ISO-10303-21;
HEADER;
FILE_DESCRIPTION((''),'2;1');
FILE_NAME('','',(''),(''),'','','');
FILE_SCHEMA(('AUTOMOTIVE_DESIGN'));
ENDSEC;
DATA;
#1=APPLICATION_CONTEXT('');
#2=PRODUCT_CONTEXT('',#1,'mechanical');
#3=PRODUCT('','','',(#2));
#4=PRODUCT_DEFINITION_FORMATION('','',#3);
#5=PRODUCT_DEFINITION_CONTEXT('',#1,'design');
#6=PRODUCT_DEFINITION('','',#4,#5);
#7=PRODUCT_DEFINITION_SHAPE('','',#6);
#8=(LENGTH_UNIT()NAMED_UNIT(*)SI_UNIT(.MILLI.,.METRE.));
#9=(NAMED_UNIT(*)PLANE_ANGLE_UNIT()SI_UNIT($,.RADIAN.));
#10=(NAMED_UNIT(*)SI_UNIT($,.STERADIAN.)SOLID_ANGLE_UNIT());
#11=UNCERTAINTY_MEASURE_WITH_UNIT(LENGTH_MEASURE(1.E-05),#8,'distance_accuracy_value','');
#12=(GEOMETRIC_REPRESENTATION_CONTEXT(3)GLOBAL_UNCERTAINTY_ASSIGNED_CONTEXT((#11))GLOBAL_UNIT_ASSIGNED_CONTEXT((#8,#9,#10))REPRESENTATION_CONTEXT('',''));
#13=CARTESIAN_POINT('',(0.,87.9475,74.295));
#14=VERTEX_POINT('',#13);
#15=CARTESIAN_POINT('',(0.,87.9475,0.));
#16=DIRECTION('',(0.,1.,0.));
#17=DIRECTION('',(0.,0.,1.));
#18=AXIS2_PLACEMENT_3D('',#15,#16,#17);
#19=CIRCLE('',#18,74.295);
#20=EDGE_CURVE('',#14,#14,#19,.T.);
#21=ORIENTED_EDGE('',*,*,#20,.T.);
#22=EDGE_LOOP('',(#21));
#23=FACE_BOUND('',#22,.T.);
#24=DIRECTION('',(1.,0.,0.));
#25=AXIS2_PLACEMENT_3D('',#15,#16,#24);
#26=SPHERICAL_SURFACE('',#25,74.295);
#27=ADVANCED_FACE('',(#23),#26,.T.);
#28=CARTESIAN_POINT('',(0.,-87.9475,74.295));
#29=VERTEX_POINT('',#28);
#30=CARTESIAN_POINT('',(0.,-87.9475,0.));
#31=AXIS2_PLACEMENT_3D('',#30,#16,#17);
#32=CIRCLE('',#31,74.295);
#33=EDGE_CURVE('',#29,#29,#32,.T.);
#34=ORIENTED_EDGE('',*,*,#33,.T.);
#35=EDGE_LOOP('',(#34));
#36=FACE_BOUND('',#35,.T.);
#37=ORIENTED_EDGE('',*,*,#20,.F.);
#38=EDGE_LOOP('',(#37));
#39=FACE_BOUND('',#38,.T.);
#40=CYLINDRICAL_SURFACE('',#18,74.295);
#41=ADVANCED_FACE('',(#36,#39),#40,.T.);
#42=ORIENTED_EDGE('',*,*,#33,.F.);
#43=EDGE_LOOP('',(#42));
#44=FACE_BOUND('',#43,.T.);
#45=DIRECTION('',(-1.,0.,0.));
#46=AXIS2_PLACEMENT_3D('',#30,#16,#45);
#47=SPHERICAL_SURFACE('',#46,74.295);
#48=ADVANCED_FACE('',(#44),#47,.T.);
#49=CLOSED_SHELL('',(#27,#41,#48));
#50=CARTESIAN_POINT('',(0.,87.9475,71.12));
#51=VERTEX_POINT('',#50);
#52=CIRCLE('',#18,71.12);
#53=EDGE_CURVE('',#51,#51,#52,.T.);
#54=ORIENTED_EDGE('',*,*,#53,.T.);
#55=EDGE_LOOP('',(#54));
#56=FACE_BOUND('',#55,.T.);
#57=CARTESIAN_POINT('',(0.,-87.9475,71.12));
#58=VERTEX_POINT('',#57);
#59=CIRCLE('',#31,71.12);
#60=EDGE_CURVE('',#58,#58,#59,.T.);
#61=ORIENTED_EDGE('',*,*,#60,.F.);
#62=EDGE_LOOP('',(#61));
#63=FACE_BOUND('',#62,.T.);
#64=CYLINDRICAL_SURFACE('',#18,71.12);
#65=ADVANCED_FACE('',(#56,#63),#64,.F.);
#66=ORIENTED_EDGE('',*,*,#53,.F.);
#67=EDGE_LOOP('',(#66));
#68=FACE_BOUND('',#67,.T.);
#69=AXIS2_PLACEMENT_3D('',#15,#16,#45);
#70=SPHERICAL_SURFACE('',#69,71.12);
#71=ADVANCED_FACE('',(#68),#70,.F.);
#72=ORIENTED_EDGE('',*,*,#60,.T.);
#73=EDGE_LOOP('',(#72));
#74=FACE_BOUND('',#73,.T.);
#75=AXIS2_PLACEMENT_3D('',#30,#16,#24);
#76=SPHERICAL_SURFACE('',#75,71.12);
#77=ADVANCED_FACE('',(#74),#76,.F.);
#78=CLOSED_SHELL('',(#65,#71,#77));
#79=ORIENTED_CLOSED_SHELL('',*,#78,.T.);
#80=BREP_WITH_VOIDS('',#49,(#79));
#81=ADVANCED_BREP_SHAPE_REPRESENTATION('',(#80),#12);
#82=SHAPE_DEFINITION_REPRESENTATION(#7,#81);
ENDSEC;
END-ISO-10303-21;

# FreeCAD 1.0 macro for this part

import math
import FreeCAD as App
import Part
import Sketcher
from FreeCAD import Vector
Q = App.Units.Quantity

doc = App.newDocument("Part")
body = doc.addObject("PartDesign::Body", "Body")

# Sketch on XY plane
sketch1 = body.newObject("Sketcher::SketchObject", "Sketch")
sketch1.AttachmentSupport = (doc.getObject("XY_Plane"), [""])
sketch1.MapMode = "FlatFace"
sketch1.addGeometry([
    Part.LineSegment(Vector(-74.3, 87.9, 0), Vector(-74.3, -87.9, 0)),  # 0
    Part.ArcOfCircle(Part.Circle(Vector(0, -87.9, 0), Vector(0, 0, 1), 74.3), math.radians(-180), math.radians(-90)),  # 1
    Part.LineSegment(Vector(0, -162.2, 0), Vector(0, -159.1, 0)),  # 2
    Part.ArcOfCircle(Part.Circle(Vector(0, -87.9, 0), Vector(0, 0, 1), 71.1), math.radians(180), math.radians(270)),  # 3
    Part.LineSegment(Vector(-71.1, -87.9, 0), Vector(-71.1, 87.9, 0)),  # 4
    Part.ArcOfCircle(Part.Circle(Vector(0, 87.9, 0), Vector(0, 0, 1), 71.1), math.radians(90), math.radians(180)),  # 5
    Part.LineSegment(Vector(0, 159.1, 0), Vector(0, 162.2, 0)),  # 6
    Part.ArcOfCircle(Part.Circle(Vector(0, 87.9, 0), Vector(0, 0, 1), 74.3), math.radians(90), math.radians(180)),  # 7
], False)
sketch1.addConstraint([
    Sketcher.Constraint("Tangent", 0, 2, 1, 1),
    Sketcher.Constraint("Coincident", 1, 2, 2, 1),
    Sketcher.Constraint("Coincident", 2, 2, 3, 2),
    Sketcher.Constraint("Tangent", 3, 1, 4, 1),
    Sketcher.Constraint("Tangent", 4, 2, 5, 2),
    Sketcher.Constraint("Coincident", 5, 1, 6, 1),
    Sketcher.Constraint("Coincident", 6, 2, 7, 1),
    Sketcher.Constraint("Tangent", 7, 2, 0, 1),
    Sketcher.Constraint("Vertical", 0),
    Sketcher.Constraint("Vertical", 2),
    Sketcher.Constraint("Vertical", 4),
    Sketcher.Constraint("Vertical", 6),
    Sketcher.Constraint("Coincident", 3, 3, 1, 3),
    Sketcher.Constraint("Coincident", 7, 3, 5, 3),
    Sketcher.Constraint("Equal", 3, 5),
    Sketcher.Constraint("Symmetric", 1, 3, 5, 3, -1, 1),
    Sketcher.Constraint("PointOnObject", 1, 2, -2),
    Sketcher.Constraint("PointOnObject", 5, 1, -2),
    Sketcher.Constraint("Radius", 3, Q("2.8 in")),
    Sketcher.Constraint("Radius", 1, Q("2.925 in")),
    Sketcher.Constraint("DistanceY", 0, 2, 0, 1, Q("6.925 in")),
])
revolution = body.newObject("PartDesign::Revolution", "Revolution")
revolution.Profile = sketch1
revolution.ReferenceAxis = (sketch1, ["V_Axis"])
revolution.Angle = 360

doc.recompute()
